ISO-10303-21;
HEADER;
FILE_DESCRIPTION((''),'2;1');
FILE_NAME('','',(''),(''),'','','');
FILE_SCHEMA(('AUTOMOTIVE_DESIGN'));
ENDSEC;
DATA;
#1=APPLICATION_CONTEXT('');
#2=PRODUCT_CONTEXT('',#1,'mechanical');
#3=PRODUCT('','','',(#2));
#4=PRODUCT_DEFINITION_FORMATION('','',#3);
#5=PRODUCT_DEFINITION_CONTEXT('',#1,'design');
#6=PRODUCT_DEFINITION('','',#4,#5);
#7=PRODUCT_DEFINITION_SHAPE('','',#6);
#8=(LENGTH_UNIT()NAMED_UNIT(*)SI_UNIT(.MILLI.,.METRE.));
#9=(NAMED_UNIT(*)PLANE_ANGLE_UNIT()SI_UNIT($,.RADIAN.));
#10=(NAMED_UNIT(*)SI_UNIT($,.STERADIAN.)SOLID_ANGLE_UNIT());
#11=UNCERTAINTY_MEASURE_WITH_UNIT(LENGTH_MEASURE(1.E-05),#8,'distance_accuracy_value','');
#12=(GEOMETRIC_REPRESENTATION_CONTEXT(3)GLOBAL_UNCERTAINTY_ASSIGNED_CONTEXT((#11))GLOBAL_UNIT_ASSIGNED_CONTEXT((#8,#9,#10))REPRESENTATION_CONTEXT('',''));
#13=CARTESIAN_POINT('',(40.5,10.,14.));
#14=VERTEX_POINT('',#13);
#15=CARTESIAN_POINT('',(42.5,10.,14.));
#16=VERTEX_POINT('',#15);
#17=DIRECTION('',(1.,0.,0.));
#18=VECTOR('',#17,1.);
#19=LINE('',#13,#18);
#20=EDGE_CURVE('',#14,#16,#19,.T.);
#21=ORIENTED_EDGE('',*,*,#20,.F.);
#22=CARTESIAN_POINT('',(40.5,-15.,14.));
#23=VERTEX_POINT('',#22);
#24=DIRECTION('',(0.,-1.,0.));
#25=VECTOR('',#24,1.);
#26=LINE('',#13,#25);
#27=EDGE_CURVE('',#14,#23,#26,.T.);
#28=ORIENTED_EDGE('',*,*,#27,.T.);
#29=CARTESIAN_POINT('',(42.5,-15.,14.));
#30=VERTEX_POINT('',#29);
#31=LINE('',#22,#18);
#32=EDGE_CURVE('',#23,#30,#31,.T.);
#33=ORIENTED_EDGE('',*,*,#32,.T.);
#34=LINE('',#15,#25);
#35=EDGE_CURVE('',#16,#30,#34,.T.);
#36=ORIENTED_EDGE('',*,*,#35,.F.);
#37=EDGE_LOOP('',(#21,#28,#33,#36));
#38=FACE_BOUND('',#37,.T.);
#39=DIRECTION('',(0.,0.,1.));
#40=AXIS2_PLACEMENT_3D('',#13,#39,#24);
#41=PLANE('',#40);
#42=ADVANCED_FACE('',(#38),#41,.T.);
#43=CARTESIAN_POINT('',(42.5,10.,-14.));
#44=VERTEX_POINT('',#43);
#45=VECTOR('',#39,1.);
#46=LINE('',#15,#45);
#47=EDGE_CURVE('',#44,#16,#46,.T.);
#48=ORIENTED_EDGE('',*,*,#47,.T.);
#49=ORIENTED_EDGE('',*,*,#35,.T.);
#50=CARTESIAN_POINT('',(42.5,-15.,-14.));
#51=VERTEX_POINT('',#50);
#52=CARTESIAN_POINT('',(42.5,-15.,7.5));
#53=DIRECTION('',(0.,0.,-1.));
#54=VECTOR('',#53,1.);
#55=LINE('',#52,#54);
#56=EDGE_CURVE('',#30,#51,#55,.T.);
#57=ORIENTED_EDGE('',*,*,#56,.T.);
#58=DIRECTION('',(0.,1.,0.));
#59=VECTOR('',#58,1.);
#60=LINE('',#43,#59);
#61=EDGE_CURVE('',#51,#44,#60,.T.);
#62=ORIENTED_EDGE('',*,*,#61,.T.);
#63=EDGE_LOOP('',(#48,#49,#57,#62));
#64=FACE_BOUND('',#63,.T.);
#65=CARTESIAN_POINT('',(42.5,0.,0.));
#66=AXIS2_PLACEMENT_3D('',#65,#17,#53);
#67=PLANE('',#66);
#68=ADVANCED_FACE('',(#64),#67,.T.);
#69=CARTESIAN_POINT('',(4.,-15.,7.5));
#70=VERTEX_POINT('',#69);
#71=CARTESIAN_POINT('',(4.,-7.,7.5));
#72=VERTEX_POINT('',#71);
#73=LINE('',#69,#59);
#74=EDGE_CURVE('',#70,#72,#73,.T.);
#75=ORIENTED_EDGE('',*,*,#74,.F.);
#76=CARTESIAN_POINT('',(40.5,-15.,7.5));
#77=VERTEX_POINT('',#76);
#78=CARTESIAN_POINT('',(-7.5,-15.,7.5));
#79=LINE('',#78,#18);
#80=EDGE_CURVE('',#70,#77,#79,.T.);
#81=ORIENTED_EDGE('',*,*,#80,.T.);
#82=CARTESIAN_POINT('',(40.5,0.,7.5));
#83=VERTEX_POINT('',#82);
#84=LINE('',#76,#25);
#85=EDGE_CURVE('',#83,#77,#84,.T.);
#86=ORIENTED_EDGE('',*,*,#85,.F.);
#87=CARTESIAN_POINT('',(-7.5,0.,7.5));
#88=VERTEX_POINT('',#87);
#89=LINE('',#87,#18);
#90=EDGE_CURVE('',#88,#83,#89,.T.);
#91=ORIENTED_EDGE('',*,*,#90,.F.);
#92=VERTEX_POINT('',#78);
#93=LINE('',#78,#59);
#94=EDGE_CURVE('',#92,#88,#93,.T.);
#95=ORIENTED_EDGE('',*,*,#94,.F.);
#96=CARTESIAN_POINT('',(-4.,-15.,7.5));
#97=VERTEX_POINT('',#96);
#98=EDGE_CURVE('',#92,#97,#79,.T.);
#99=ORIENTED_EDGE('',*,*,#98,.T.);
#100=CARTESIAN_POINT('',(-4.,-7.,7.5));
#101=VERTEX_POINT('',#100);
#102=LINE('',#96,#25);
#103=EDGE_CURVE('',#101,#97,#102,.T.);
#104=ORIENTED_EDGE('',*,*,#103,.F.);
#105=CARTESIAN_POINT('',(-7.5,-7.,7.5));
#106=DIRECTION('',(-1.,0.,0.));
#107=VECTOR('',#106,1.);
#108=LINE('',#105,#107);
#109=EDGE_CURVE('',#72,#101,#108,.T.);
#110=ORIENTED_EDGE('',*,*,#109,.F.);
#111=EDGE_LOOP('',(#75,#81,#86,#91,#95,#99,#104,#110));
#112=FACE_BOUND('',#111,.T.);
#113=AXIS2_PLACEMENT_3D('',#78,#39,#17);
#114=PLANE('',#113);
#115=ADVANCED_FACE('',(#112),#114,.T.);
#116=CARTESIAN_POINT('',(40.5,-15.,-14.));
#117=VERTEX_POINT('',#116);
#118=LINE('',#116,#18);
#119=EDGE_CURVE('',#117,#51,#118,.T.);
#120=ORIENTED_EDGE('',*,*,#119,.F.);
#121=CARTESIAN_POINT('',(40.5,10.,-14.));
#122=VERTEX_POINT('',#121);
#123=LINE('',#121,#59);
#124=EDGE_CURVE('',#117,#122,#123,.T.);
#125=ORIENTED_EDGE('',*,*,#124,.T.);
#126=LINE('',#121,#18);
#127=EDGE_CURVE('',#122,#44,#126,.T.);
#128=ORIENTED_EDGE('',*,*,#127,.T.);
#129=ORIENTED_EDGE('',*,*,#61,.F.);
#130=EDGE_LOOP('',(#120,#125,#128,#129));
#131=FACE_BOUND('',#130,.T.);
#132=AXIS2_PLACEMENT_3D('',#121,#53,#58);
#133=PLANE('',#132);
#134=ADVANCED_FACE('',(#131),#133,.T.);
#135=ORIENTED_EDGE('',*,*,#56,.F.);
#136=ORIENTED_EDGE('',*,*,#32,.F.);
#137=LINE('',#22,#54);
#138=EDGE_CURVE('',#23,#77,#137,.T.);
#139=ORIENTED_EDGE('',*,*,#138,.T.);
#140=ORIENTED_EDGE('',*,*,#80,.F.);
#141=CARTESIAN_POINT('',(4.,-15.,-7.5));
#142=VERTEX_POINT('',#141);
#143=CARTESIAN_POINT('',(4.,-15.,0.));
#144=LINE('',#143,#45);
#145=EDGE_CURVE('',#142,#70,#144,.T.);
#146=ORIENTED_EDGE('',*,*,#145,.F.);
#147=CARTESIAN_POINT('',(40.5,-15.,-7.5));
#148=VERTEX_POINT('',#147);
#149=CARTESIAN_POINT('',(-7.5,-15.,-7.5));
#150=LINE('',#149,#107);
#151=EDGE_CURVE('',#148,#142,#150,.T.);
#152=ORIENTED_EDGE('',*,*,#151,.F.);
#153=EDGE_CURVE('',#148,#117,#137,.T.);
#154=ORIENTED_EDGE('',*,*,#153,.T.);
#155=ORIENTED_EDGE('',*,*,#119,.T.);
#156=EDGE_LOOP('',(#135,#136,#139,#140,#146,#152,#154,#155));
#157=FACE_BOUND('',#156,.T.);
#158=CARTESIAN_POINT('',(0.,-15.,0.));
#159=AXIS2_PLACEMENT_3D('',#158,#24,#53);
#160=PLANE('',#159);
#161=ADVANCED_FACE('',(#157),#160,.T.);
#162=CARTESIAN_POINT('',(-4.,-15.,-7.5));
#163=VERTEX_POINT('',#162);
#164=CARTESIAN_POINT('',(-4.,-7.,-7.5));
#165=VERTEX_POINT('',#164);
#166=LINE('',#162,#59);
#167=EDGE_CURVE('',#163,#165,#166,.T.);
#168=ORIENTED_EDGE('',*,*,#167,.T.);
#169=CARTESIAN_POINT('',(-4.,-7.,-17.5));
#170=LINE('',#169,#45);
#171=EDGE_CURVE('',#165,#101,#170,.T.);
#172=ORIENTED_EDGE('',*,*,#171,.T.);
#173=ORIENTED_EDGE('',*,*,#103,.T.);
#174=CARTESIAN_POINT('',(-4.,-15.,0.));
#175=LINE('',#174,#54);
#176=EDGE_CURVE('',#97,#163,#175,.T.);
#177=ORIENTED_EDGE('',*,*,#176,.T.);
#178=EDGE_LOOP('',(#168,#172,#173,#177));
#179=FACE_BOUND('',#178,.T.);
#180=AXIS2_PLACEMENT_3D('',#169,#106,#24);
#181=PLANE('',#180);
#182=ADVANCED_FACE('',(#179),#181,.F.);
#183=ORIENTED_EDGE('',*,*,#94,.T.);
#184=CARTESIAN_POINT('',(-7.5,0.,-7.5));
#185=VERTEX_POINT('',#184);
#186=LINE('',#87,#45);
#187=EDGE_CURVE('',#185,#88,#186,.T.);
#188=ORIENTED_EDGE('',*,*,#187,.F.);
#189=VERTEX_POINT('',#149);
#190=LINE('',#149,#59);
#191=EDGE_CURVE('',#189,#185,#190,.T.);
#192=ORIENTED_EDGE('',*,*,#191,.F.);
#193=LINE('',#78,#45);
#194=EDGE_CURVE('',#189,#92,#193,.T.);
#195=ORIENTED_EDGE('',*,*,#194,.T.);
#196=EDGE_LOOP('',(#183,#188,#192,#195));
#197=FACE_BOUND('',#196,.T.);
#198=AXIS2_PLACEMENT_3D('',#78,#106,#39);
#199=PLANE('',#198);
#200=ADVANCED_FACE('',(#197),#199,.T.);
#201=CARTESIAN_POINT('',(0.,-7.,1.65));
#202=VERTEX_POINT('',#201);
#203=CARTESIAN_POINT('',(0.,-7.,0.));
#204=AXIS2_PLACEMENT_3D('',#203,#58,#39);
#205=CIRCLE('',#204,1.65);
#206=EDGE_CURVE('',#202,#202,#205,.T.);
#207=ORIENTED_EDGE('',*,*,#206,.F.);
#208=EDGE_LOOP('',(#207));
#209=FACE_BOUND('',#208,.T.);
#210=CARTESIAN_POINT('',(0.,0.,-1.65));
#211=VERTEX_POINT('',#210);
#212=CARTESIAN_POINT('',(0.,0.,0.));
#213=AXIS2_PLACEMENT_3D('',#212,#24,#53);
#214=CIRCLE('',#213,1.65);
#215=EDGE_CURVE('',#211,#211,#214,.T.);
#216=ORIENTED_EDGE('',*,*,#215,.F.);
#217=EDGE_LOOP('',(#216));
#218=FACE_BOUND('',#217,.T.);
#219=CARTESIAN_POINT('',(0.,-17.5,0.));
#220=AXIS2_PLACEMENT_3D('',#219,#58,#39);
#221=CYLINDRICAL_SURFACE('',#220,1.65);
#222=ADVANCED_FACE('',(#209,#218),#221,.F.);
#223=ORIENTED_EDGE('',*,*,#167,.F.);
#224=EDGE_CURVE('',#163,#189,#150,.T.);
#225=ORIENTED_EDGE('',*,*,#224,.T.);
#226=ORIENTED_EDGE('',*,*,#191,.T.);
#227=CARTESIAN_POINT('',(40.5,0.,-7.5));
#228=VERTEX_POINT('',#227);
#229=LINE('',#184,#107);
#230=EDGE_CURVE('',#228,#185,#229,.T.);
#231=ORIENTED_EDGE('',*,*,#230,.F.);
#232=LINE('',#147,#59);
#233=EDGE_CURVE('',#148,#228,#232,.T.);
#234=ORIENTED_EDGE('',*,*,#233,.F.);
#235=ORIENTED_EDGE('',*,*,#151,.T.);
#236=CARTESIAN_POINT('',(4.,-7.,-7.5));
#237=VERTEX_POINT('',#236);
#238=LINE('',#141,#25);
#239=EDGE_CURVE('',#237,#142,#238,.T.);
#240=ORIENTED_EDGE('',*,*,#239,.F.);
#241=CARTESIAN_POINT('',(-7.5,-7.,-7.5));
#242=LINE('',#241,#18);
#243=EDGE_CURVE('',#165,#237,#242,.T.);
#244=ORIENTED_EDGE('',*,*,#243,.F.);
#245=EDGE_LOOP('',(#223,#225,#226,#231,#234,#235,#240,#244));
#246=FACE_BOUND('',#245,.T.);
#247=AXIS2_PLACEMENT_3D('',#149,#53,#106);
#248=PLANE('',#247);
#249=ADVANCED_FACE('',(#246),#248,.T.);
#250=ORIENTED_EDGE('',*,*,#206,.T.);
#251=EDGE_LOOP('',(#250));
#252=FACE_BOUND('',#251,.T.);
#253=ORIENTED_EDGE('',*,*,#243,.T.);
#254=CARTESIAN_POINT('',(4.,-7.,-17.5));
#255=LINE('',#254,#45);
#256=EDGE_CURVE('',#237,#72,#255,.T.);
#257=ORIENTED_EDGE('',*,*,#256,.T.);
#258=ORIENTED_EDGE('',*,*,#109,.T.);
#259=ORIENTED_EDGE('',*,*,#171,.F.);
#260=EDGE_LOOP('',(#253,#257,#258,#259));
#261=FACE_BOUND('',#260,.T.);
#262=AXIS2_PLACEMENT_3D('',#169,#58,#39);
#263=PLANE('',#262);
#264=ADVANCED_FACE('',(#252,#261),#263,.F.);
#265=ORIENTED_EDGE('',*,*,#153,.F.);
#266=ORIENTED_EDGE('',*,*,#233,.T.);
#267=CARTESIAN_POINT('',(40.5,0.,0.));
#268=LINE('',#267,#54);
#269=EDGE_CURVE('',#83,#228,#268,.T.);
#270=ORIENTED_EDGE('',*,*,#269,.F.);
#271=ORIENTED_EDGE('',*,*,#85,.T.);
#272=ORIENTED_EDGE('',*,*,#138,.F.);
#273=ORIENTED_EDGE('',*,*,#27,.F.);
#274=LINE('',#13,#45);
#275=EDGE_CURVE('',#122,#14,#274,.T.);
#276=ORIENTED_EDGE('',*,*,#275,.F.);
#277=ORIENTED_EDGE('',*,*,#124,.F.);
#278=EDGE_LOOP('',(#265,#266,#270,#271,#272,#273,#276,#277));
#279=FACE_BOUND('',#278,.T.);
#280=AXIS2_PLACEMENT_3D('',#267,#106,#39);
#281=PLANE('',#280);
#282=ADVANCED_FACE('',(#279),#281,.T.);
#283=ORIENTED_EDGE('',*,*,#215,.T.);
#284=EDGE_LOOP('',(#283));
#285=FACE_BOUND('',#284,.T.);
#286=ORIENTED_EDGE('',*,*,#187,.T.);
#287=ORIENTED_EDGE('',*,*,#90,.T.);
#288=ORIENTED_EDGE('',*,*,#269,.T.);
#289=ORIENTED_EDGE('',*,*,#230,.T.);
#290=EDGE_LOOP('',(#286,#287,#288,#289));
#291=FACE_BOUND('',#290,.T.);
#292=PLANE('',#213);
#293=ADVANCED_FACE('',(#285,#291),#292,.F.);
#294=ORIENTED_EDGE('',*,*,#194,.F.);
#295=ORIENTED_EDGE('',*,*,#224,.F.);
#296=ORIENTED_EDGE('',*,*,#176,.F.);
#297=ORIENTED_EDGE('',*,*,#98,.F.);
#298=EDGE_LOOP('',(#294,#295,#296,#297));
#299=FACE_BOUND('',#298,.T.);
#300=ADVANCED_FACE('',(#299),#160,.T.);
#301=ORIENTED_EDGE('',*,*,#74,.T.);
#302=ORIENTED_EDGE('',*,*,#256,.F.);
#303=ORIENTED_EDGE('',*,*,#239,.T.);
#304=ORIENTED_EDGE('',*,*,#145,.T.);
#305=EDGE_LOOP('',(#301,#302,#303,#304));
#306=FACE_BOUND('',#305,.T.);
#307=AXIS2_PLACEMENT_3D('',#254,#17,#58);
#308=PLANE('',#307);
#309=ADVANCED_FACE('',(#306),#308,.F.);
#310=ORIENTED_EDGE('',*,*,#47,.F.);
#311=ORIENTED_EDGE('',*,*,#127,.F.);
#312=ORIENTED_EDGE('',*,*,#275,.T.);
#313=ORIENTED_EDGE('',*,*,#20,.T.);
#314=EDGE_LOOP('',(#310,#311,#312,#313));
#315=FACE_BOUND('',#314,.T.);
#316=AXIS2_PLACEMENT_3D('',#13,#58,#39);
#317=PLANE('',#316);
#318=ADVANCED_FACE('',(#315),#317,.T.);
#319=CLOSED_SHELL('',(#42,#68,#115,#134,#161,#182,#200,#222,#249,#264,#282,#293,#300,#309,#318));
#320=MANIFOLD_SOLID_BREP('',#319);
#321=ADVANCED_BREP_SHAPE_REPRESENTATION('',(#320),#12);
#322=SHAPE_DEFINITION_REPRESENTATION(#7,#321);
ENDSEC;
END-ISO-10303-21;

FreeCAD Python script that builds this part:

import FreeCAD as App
import Part
import Sketcher
from FreeCAD import Vector


def add_polygon(sketch, points):
    """Adds a closed chain of lines whose ends are joined by coincident constraints."""
    first, n = sketch.GeometryCount, len(points)
    for a, b in zip(points, points[1:] + points[:1]):
        sketch.addGeometry(Part.LineSegment(App.Vector(*a, 0), App.Vector(*b, 0)), False)
    for i in range(n):
        sketch.addConstraint(Sketcher.Constraint("Coincident", first + i, 2, first + (i + 1) % n, 1))

doc = App.newDocument("Part")
body = doc.addObject("PartDesign::Body", "Body")

# Sketch on XZ plane
sketch1 = doc.addObject("Sketcher::SketchObject", "Sketch")
body.addObject(sketch1)
sketch1.AttachmentSupport = (doc.XZ_Plane, [""])
sketch1.MapMode = "FlatFace"
add_polygon(sketch1, [(-8, -8), (-8, 8), (8, 8), (8, -8)])  # lines 0-3
sketch1.addConstraint([
    Sketcher.Constraint("Vertical", 0),
    Sketcher.Constraint("Horizontal", 1),
    Sketcher.Constraint("Vertical", 2),
    Sketcher.Constraint("Horizontal", 3),
    Sketcher.Constraint("Symmetric", 0, 2, 2, 2, -1, 1),
    Sketcher.Constraint("Equal", 3, 0),
    Sketcher.Constraint("DistanceX", 1, 1, 1, 2, 15.0),
])
pad1 = doc.addObject("PartDesign::Pad", "Pad")
body.addObject(pad1)
pad1.Profile = sketch1
pad1.Length = 15

# Sketch on XY plane
sketch2 = doc.addObject("Sketcher::SketchObject", "Sketch001")
body.addObject(sketch2)
sketch2.AttachmentSupport = (doc.XY_Plane, [""])
sketch2.MapMode = "FlatFace"
add_polygon(sketch2, [(-4, -7), (-4, -15), (4, -15), (4, -7)])  # lines 0-3
sketch2.addConstraint([
    Sketcher.Constraint("Vertical", 0),
    Sketcher.Constraint("Horizontal", 1),
    Sketcher.Constraint("Vertical", 2),
    Sketcher.Constraint("Horizontal", 3),
    Sketcher.Constraint("Equal", 3, 0),
    Sketcher.Constraint("DistanceX", 1, 1, 1, 2, 8.0),
    Sketcher.Constraint("DistanceX", 0, 2, -1, 1, 4.0),
    Sketcher.Constraint("DistanceY", 0, 2, -1, 1, 15.0),
])
pocket1 = doc.addObject("PartDesign::Pocket", "Pocket")
body.addObject(pocket1)
pocket1.Profile = sketch2
pocket1.Length = 35
pocket1.Midplane = True

# Sketch on XZ plane
sketch3 = doc.addObject("Sketcher::SketchObject", "Sketch002")
body.addObject(sketch3)
sketch3.AttachmentSupport = (doc.XZ_Plane, [""])
sketch3.MapMode = "FlatFace"
sketch3.addGeometry(Part.Circle(Vector(0, 0, 0), Vector(0, 0, 1), 1.6), False)
sketch3.addConstraint([
    Sketcher.Constraint("Coincident", 0, 3, -1, 1),
    Sketcher.Constraint("Diameter", 0, 3.3),
])
pocket2 = doc.addObject("PartDesign::Pocket", "Pocket001")
body.addObject(pocket2)
pocket2.Profile = sketch3
pocket2.Length = 35
pocket2.Midplane = True

# Sketch on YZ plane
sketch4 = doc.addObject("Sketcher::SketchObject", "Sketch003")
body.addObject(sketch4)
sketch4.AttachmentSupport = (doc.YZ_Plane, [""])
sketch4.MapMode = "FlatFace"
sketch4.AttachmentOffset = App.Placement(Vector(0, 0, 7.5), App.Rotation())
add_polygon(sketch4, [(0, 8), (-15, 8), (-15, -8), (0, -8)])  # lines 0-3
sketch4.addConstraint([
    Sketcher.Constraint("Horizontal", 0),
    Sketcher.Constraint("Vertical", 1),
    Sketcher.Constraint("Horizontal", 2),
    Sketcher.Constraint("Vertical", 3),
    Sketcher.Constraint("Symmetric", 2, 2, 3, 2, -1, 1),
    Sketcher.Constraint("Equal", 2, 1),
    Sketcher.Constraint("DistanceX", 0, 2, 0, 1, 15.0),
])
pad2 = doc.addObject("PartDesign::Pad", "Pad001")
body.addObject(pad2)
pad2.Profile = sketch4
pad2.Length = 35

# Sketch on YZ plane
sketch5 = doc.addObject("Sketcher::SketchObject", "Sketch004")
body.addObject(sketch5)
sketch5.AttachmentSupport = (doc.YZ_Plane, [""])
sketch5.MapMode = "FlatFace"
sketch5.AttachmentOffset = App.Placement(Vector(0, 0, 42.5), App.Rotation())
add_polygon(sketch5, [(10, 14), (-15, 14), (-15, -14), (10, -14)])  # lines 0-3
sketch5.addConstraint([
    Sketcher.Constraint("Horizontal", 0),
    Sketcher.Constraint("Vertical", 1),
    Sketcher.Constraint("Horizontal", 2),
    Sketcher.Constraint("Vertical", 3),
    Sketcher.Constraint("DistanceX", 0, 2, 0, 1, 25.0),
    Sketcher.Constraint("DistanceY", 1, 2, 1, 1, 28.0),
    Sketcher.Constraint("DistanceX", 0, 2, -1, 1, 15.0),
    Sketcher.Constraint("DistanceY", -1, 1, 0, 2, 14.0),
])
pad3 = doc.addObject("PartDesign::Pad", "Pad002")
body.addObject(pad3)
pad3.Profile = sketch5
pad3.Length = 2
pad3.Reversed = True

doc.recompute()
